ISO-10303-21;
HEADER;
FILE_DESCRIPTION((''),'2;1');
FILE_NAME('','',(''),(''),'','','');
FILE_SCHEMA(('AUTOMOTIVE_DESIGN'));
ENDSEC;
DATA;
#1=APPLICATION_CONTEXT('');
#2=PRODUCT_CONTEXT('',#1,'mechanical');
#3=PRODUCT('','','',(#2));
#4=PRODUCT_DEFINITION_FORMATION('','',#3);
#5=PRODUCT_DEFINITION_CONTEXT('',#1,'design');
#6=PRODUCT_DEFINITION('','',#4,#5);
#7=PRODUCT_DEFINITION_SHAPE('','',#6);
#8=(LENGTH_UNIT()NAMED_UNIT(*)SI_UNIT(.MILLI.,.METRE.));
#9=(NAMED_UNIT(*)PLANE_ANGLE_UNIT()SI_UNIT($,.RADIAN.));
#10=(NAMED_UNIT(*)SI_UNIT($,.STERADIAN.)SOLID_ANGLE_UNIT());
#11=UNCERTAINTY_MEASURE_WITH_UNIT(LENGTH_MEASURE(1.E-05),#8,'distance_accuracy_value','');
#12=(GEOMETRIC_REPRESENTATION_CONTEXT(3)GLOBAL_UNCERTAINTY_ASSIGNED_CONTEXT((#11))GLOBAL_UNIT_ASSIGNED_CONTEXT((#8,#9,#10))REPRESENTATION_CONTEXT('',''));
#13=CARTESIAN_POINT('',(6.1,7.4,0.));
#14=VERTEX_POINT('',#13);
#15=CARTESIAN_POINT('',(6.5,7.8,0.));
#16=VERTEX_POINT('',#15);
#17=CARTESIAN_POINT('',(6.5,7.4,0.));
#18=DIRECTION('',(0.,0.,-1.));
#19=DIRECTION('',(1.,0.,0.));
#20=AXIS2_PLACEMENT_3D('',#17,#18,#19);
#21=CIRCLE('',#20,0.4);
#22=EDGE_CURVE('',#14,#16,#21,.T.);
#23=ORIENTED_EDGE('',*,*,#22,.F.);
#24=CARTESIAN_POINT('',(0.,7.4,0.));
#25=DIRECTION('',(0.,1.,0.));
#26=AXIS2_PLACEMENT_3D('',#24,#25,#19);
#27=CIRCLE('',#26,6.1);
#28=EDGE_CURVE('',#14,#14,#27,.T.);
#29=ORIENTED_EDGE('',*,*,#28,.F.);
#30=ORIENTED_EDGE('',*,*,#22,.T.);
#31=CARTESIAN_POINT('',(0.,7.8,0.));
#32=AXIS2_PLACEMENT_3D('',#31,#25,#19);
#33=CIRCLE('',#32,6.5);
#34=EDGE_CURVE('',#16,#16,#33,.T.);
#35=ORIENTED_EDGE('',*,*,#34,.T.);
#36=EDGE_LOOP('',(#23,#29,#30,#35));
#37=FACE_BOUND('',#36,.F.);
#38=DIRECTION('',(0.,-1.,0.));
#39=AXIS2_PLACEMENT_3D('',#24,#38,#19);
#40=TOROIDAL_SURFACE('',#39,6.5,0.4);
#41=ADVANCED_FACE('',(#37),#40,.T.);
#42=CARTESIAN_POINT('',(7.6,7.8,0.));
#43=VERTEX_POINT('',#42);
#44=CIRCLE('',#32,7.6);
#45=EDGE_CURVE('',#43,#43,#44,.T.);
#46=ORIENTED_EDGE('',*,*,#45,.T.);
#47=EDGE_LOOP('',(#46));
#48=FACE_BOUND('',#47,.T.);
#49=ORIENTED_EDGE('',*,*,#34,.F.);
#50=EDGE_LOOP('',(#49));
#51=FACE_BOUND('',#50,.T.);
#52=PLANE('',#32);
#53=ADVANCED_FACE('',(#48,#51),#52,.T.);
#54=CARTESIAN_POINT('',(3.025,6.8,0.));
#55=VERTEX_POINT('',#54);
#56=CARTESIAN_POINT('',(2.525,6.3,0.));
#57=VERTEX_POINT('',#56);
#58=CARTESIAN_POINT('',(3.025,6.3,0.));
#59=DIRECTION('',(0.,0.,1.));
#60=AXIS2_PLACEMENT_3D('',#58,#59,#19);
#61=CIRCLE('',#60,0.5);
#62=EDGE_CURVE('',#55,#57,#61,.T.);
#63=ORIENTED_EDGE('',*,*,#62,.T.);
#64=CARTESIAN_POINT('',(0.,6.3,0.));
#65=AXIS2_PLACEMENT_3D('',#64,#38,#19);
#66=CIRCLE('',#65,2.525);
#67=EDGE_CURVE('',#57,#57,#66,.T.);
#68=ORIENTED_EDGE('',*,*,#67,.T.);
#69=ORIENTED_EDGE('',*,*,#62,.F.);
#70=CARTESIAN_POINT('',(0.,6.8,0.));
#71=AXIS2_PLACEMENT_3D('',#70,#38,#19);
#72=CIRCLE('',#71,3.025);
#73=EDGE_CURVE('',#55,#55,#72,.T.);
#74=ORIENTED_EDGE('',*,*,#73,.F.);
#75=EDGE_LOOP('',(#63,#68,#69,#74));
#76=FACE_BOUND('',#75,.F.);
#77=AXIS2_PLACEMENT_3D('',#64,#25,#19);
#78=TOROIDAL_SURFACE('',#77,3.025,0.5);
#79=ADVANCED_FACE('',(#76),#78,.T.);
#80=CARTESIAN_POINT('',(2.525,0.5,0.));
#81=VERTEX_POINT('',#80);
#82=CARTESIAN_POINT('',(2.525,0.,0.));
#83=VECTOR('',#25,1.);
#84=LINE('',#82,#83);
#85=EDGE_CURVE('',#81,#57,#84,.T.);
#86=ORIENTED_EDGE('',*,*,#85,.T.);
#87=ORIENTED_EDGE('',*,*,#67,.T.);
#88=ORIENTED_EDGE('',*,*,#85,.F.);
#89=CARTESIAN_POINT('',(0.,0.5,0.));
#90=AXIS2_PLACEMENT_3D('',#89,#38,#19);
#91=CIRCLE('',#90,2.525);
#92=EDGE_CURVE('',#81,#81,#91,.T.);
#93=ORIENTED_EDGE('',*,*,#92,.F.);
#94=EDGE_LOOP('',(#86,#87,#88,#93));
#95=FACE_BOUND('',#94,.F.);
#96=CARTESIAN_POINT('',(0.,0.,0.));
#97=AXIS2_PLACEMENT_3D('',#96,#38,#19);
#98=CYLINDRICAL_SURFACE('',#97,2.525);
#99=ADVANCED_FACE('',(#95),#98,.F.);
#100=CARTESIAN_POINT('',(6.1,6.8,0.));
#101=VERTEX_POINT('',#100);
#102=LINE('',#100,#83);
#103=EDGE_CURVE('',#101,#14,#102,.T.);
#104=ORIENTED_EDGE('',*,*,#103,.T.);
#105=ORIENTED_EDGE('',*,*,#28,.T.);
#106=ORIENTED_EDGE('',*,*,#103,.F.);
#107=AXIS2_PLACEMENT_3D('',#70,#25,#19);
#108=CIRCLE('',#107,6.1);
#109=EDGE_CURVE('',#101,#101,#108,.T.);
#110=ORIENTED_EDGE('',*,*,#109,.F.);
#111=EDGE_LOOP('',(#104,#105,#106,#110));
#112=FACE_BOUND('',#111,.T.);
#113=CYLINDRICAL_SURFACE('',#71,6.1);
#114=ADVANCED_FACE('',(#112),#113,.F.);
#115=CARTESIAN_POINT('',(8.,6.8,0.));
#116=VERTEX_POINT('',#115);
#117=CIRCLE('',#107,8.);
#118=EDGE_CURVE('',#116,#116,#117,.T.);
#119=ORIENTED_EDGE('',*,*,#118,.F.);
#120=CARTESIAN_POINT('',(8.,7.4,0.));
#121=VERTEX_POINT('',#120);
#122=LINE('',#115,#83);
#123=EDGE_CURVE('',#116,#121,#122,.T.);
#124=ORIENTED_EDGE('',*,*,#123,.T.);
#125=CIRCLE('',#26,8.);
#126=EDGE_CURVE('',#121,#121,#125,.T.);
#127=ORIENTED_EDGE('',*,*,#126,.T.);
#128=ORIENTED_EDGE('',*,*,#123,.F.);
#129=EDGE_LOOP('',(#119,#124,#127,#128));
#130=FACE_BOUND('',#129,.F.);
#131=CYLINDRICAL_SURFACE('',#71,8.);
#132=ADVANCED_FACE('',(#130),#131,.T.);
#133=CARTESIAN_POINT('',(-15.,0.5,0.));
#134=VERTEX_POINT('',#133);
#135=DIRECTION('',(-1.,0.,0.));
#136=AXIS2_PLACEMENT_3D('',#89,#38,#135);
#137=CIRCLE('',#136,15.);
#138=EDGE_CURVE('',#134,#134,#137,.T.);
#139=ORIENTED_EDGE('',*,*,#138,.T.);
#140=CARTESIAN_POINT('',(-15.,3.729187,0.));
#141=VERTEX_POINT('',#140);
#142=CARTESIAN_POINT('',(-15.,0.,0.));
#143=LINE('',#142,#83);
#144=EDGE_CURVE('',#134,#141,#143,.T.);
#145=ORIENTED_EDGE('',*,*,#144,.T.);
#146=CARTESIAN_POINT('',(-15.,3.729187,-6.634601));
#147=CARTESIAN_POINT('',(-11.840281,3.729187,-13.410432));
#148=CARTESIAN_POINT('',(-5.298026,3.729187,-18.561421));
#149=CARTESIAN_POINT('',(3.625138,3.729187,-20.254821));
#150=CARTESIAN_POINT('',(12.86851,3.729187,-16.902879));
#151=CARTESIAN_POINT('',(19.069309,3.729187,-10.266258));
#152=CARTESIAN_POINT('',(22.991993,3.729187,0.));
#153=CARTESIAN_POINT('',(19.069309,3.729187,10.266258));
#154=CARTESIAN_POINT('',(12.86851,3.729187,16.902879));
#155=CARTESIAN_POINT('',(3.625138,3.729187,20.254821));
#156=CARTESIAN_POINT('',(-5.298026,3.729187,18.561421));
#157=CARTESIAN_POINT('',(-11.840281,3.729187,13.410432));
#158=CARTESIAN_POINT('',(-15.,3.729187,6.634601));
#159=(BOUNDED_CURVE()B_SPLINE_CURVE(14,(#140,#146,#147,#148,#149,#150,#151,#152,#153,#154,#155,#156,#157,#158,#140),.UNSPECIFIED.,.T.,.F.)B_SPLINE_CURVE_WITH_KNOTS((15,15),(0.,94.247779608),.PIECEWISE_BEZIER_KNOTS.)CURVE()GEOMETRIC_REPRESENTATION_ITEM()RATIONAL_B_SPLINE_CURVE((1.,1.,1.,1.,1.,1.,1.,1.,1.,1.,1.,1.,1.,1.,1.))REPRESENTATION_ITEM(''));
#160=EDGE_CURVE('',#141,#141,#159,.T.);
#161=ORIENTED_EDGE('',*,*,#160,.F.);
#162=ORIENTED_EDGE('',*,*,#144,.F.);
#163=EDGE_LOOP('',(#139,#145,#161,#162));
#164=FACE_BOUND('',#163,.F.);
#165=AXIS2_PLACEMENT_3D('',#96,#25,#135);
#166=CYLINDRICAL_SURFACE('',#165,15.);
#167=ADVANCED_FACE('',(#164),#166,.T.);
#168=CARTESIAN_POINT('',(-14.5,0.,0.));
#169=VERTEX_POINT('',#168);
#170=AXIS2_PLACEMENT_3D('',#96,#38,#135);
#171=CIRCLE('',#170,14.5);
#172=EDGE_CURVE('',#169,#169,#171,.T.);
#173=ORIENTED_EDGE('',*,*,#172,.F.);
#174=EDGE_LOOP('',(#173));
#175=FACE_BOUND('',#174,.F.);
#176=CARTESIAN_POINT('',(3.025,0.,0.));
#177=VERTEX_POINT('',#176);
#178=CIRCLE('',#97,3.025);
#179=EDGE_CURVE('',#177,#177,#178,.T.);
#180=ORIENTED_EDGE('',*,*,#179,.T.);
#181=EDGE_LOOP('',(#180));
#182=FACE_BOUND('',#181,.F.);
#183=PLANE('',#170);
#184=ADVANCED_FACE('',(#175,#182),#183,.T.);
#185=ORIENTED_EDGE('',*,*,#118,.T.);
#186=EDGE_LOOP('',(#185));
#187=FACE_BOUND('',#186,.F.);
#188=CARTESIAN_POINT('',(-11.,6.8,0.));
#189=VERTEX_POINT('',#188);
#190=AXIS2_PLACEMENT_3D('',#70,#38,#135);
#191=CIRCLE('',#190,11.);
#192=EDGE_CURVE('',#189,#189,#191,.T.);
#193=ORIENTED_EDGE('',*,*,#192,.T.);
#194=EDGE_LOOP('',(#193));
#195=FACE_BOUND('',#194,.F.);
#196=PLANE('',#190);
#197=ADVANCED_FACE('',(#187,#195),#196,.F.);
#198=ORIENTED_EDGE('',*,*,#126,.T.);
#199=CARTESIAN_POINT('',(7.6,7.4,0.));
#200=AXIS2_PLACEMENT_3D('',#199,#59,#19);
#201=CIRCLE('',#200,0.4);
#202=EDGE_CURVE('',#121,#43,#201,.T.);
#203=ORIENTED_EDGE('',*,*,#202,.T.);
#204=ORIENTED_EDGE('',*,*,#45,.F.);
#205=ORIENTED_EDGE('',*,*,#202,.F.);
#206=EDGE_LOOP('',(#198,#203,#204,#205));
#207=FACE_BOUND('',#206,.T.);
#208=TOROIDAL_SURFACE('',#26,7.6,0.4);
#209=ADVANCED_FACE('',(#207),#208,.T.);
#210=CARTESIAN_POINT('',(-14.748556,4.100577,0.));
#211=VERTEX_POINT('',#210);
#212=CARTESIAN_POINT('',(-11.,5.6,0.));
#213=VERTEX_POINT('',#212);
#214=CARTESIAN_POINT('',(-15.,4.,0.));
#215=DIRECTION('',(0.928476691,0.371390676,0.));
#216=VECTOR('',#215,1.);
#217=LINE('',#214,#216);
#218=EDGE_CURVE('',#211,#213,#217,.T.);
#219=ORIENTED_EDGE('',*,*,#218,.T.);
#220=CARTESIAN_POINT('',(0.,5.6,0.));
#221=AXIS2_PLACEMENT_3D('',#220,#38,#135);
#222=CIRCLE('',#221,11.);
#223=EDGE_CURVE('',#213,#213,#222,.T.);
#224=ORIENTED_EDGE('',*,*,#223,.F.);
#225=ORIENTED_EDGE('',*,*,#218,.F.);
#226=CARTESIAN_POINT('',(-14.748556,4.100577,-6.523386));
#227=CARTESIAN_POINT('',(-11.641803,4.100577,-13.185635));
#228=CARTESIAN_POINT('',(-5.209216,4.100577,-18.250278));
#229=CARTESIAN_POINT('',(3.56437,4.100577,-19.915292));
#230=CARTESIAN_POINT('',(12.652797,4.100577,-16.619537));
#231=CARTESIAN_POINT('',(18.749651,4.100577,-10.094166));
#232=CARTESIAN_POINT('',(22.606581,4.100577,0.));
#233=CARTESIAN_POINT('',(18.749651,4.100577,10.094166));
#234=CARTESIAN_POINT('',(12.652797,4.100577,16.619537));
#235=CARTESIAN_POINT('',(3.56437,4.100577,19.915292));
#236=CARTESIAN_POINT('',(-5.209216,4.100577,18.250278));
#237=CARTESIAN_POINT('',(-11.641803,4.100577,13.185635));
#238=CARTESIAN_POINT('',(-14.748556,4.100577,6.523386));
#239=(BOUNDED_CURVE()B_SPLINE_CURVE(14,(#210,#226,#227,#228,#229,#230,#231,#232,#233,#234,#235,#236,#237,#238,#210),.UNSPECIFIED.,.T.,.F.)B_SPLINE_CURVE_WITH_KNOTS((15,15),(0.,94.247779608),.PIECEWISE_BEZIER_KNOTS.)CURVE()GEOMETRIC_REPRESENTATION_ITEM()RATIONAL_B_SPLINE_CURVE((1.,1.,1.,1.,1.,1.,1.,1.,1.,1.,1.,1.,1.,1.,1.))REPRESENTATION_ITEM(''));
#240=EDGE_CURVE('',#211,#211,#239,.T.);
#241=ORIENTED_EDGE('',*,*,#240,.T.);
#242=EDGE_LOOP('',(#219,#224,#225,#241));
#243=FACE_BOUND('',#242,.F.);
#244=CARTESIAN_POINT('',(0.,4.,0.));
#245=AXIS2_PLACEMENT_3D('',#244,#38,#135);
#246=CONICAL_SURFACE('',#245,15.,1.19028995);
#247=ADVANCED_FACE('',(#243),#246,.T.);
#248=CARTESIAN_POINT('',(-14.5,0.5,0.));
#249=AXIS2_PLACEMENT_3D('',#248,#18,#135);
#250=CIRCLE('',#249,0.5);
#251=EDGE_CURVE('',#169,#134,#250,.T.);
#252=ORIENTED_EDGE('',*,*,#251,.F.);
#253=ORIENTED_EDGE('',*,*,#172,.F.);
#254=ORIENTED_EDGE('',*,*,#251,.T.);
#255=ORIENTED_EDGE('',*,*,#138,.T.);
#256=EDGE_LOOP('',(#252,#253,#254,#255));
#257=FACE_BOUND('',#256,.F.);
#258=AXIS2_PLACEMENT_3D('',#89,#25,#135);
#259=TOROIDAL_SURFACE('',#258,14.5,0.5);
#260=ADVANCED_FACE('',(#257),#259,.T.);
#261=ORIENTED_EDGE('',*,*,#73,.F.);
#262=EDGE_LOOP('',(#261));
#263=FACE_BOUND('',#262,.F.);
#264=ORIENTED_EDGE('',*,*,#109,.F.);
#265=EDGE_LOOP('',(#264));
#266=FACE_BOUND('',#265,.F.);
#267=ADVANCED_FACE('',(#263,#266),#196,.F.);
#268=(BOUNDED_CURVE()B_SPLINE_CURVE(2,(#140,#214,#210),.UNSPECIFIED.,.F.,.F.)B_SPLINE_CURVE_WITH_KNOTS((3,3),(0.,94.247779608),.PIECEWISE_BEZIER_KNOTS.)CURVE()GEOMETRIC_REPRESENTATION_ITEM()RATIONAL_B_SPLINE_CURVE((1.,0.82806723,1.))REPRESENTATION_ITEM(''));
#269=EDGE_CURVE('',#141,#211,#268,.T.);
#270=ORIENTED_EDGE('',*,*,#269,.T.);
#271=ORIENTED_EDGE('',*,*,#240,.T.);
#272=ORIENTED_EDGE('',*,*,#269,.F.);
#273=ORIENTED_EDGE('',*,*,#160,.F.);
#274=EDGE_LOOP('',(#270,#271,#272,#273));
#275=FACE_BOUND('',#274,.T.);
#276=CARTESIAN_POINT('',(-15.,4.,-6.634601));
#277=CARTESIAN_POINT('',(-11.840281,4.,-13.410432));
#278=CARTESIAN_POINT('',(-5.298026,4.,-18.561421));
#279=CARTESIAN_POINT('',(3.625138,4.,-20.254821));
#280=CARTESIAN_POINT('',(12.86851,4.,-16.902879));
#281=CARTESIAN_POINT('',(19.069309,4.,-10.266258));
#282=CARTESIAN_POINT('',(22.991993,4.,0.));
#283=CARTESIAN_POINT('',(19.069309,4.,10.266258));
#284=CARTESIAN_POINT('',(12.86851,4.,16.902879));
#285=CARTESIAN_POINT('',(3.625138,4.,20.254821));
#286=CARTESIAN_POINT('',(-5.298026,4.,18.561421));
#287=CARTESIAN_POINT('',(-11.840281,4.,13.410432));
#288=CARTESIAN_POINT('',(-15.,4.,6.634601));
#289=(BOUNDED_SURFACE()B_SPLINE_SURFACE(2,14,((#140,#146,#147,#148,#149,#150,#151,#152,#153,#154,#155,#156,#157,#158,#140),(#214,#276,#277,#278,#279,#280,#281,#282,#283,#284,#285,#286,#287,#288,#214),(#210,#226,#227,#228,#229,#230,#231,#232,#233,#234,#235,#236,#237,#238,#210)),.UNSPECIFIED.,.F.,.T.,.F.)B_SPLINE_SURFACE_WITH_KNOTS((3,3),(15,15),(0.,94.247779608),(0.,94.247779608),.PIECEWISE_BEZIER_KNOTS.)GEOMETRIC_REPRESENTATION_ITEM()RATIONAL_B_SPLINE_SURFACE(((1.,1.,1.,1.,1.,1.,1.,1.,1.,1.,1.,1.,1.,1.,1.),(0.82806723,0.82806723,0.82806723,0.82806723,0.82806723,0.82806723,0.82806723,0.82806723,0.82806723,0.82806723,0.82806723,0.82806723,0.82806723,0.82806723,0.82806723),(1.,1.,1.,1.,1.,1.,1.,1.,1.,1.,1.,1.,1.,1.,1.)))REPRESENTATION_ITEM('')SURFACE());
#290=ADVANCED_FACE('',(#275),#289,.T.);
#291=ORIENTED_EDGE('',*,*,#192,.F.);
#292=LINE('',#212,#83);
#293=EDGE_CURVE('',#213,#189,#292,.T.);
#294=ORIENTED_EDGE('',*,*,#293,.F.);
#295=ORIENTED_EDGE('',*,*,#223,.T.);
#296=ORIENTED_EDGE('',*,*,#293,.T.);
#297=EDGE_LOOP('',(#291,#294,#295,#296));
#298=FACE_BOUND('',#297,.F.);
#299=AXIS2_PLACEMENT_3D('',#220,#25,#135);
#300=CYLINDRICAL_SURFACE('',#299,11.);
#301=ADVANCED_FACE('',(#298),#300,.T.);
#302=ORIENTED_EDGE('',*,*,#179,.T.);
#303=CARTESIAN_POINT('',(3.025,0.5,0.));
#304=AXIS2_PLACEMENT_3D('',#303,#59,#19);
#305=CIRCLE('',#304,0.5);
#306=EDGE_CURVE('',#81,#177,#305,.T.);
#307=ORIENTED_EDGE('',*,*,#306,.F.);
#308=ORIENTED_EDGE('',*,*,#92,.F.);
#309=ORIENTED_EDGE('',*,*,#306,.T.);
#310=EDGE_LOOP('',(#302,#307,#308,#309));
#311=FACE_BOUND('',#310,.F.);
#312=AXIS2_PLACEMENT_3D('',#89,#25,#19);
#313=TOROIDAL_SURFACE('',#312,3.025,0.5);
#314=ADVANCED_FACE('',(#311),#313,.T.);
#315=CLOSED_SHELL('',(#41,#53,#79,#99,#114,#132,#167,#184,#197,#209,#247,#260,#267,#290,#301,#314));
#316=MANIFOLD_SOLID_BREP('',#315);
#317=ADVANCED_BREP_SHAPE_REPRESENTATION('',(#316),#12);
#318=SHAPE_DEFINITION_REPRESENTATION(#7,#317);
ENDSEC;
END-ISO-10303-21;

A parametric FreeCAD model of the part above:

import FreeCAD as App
import Part
import Sketcher

V = App.Vector


def edges_at(feature, points):
    """Names of the edges that pass closest to the given points."""
    edges = feature.Shape.Edges
    near = lambda p: min(range(len(edges)), key=lambda i: edges[i].distToShape(Part.Vertex(*p))[0])
    return sorted({f"Edge{near(p) + 1}" for p in points})


def add_polygon(sketch, points):
    """Adds a closed chain of lines whose ends are joined by coincident constraints."""
    first, n = sketch.GeometryCount, len(points)
    for a, b in zip(points, points[1:] + points[:1]):
        sketch.addGeometry(Part.LineSegment(App.Vector(*a, 0), App.Vector(*b, 0)), False)
    for i in range(n):
        sketch.addConstraint(Sketcher.Constraint("Coincident", first + i, 2, first + (i + 1) % n, 1))

doc = App.newDocument("Part")
params = doc.addObject("Spreadsheet::Sheet", "Params")
for row, (alias, value) in enumerate([
    ("sketch1_width", "11 mm"),
    ("sketch1_height", "4 mm"),
    ("sketch1_height2", "1.2 mm"),
    ("revolution_angle", "360 deg"),
    ("fillet_radius", "0.5 mm"),
    ("sketch2_diameter", "5.05 mm"),
    ("pocket1_length", "6.8 mm"),
    ("fillet2_radius", "0.4 mm"),
    ("sketch3_diameter", "16 mm"),
    ("sketch3_diameter2", "12.2 mm"),
    ("pad1_length", "1 mm"),
    ("fillet3_radius", "0.4 mm"),
    ("fillet4_radius", "0.5 mm"),
], start=1):
    params.set(f"A{row}", alias)
    params.set(f"B{row}", "=" + value)
    params.setAlias(f"B{row}", alias)

body = doc.addObject("PartDesign::Body", "Body")

# Sketch on XY plane
sketch1 = body.newObject("Sketcher::SketchObject", "Sketch")
sketch1.AttachmentSupport = (doc.getObject("XY_Plane"), [""])
sketch1.MapMode = "FlatFace"
add_polygon(sketch1, [(-15, 0), (0, 0), (0, 6.8), (-11, 6.8), (-11, 5.6), (-15, 4)])  # lines 0-5
sketch1.addConstraint([
    Sketcher.Constraint("Horizontal", 0),
    Sketcher.Constraint("Vertical", 1),
    Sketcher.Constraint("Horizontal", 2),
    Sketcher.Constraint("Vertical", 3),
    Sketcher.Constraint("Vertical", 5),
    Sketcher.Constraint("Coincident", 0, 2, -1, 1),
    Sketcher.Constraint("DistanceX", 2, 2, 2, 1, 11.0),
    Sketcher.Constraint("DistanceY", 5, 2, 5, 1, 4.0),
    Sketcher.Constraint("DistanceY", 3, 2, 3, 1, 1.2),
    Sketcher.Constraint("DistanceX", 4, 2, 3, 2, 4.0),
    Sketcher.Constraint("DistanceY", 4, 2, 2, 2, 2.8),
])
sketch1.setExpression("Constraints[12]", "Params.sketch1_width")
sketch1.setExpression("Constraints[13]", "Params.sketch1_height")
sketch1.setExpression("Constraints[14]", "Params.sketch1_height2")
revolution = body.newObject("PartDesign::Revolution", "Revolution")
revolution.Profile = sketch1
revolution.ReferenceAxis = (sketch1, ["V_Axis"])
revolution.setExpression("Angle", "Params.revolution_angle")
doc.recompute()

fillet = body.newObject("PartDesign::Fillet", "Fillet")
fillet.Base = (revolution, edges_at(revolution, [(15, 0, 0)]))
fillet.setExpression("Radius", "Params.fillet_radius")

# Sketch on XZ plane
sketch2 = body.newObject("Sketcher::SketchObject", "Sketch001")
sketch2.AttachmentSupport = (doc.getObject("XZ_Plane"), [""])
sketch2.MapMode = "FlatFace"
sketch2.addGeometry(Part.Circle(V(0, 0, 0), V(0, 0, 1), 2.5), False)
sketch2.addConstraint([
    Sketcher.Constraint("Coincident", 0, 3, -1, 1),
    Sketcher.Constraint("Diameter", 0, 5.05),
])
sketch2.setExpression("Constraints[1]", "Params.sketch2_diameter")
pocket1 = body.newObject("PartDesign::Pocket", "Pocket")
pocket1.Profile = sketch2
pocket1.setExpression("Length", "Params.pocket1_length")
doc.recompute()

fillet2 = body.newObject("PartDesign::Fillet", "Fillet001")
fillet2.Base = (pocket1, edges_at(pocket1, [(15, 4, 0)]))
fillet2.setExpression("Radius", "Params.fillet2_radius")

# Sketch on XZ plane
sketch3 = body.newObject("Sketcher::SketchObject", "Sketch002")
sketch3.AttachmentSupport = (doc.getObject("XZ_Plane"), [""])
sketch3.MapMode = "FlatFace"
sketch3.AttachmentOffset = App.Placement(V(0, 0, -6.8), App.Rotation())
sketch3.addGeometry([
    Part.Circle(V(0, 0, 0), V(0, 0, 1), 8),
    Part.Circle(V(0, 0, 0), V(0, 0, 1), 6),
], False)
sketch3.addConstraint([
    Sketcher.Constraint("Coincident", 0, 3, -1, 1),
    Sketcher.Constraint("Coincident", 1, 3, -1, 1),
    Sketcher.Constraint("Diameter", 0, 16.0),
    Sketcher.Constraint("Diameter", 1, 12.2),
])
sketch3.setExpression("Constraints[2]", "Params.sketch3_diameter")
sketch3.setExpression("Constraints[3]", "Params.sketch3_diameter2")
pad1 = body.newObject("PartDesign::Pad", "Pad")
pad1.Profile = sketch3
pad1.setExpression("Length", "Params.pad1_length")
pad1.Reversed = True
doc.recompute()

fillet3 = body.newObject("PartDesign::Fillet", "Fillet002")
fillet3.Base = (pad1, edges_at(pad1, [(-6.1, 7.8, 0), (-8, 7.8, 0)]))
fillet3.setExpression("Radius", "Params.fillet3_radius")
doc.recompute()

fillet4 = body.newObject("PartDesign::Fillet", "Fillet003")
fillet4.Base = (fillet3, edges_at(fillet3, [(-2.525, 6.8, 0), (-2.525, 0, 0)]))
fillet4.setExpression("Radius", "Params.fillet4_radius")

doc.recompute()
